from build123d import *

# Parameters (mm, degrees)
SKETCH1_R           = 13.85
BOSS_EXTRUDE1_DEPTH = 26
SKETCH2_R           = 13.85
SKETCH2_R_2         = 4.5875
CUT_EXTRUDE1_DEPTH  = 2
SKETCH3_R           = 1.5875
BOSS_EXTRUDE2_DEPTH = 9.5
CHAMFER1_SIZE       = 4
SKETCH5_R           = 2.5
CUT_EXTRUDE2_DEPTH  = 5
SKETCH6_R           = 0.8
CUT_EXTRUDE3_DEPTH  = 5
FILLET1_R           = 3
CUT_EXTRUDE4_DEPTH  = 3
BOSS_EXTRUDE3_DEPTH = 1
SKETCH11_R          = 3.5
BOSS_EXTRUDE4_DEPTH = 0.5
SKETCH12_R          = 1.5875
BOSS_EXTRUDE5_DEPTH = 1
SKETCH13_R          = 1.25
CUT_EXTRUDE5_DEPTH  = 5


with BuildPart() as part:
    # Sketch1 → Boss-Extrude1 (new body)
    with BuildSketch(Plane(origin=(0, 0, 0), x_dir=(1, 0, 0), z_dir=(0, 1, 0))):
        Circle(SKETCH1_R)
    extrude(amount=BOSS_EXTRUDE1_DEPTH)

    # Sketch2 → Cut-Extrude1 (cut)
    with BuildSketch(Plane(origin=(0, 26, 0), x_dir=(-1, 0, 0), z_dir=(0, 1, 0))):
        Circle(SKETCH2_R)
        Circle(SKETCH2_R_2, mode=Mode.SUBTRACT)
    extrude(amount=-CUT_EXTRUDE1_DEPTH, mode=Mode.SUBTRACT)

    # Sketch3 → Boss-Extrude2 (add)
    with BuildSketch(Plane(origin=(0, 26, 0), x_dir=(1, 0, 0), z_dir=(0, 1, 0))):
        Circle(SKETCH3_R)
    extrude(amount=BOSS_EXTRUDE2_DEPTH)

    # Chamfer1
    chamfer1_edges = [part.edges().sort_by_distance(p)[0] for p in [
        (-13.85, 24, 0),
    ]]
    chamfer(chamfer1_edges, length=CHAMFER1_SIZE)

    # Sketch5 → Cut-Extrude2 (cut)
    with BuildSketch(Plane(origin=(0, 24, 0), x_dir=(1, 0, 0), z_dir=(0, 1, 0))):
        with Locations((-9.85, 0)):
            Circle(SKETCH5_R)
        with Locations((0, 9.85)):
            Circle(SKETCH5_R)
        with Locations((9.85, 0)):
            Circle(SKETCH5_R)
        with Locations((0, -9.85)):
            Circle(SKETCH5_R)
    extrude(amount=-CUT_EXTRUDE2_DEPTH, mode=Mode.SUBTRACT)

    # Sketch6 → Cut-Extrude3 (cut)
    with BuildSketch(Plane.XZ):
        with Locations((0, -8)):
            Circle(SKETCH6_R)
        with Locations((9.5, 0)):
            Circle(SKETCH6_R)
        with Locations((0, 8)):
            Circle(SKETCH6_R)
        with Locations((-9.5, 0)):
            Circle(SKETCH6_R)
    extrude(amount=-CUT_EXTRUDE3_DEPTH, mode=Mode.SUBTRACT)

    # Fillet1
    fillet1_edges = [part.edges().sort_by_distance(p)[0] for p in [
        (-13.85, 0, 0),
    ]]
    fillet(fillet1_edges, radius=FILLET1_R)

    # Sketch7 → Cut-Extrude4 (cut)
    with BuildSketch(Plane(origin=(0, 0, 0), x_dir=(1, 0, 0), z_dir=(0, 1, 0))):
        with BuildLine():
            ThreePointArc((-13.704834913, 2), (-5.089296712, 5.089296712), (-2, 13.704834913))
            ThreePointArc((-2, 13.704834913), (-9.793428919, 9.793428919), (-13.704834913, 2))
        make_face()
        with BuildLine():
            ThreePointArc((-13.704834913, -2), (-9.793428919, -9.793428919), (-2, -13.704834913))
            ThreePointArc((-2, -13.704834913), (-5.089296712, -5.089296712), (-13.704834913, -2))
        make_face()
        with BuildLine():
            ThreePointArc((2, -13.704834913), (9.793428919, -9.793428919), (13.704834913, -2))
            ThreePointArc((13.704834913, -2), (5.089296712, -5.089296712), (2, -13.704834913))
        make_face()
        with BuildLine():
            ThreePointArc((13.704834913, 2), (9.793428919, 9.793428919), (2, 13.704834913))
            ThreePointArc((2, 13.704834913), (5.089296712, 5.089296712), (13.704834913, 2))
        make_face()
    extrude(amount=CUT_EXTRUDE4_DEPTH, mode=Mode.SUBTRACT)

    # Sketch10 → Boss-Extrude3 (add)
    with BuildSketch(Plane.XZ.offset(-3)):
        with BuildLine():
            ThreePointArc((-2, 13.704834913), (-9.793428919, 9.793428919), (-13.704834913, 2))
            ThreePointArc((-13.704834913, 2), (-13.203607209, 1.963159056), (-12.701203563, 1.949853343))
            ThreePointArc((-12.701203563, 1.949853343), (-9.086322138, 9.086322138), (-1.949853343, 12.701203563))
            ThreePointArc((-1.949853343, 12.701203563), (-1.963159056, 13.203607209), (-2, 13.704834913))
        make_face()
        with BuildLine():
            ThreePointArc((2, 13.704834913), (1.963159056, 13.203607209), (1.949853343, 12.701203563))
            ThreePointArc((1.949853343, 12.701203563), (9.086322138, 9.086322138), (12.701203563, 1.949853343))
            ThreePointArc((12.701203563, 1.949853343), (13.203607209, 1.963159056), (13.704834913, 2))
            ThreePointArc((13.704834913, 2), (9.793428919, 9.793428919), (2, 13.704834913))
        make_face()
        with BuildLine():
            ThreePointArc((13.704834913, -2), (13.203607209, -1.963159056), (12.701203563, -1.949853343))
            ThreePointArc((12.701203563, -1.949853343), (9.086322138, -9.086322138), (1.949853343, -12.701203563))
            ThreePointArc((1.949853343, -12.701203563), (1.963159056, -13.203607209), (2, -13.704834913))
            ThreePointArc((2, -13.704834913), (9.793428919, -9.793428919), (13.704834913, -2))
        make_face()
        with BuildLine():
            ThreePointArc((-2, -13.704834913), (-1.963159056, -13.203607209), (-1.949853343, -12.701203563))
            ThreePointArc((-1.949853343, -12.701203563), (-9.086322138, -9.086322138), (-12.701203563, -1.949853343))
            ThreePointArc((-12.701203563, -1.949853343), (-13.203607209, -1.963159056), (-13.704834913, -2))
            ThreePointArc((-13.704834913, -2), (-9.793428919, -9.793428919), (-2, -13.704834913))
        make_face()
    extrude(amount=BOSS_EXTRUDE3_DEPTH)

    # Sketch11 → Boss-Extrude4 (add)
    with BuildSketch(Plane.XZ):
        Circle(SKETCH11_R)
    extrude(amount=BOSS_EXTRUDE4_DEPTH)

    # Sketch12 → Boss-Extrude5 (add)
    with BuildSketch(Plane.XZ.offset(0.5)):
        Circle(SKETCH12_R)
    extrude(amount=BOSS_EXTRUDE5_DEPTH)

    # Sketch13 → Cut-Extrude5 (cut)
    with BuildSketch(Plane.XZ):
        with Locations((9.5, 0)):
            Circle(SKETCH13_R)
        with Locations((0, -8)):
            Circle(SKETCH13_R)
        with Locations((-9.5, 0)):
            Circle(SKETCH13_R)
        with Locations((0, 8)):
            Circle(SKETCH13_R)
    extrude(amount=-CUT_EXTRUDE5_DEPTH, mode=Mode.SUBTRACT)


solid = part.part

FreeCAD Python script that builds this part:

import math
import FreeCAD as App
import Part
import Sketcher
from FreeCAD import Vector
Q = App.Units.Quantity


def edges_at(feature, points):
    """Names of the edges that pass closest to the given points."""
    edges = feature.Shape.Edges
    near = lambda p: min(range(len(edges)), key=lambda i: edges[i].distToShape(Part.Vertex(*p))[0])
    return sorted({f"Edge{near(p) + 1}" for p in points})

doc = App.newDocument("Part")
body = doc.addObject("PartDesign::Body", "Body")

# Sketch on XZ plane
sketch1 = body.newObject("Sketcher::SketchObject", "Sketch")
sketch1.AttachmentSupport = (doc.getObject("XZ_Plane"), [""])
sketch1.MapMode = "FlatFace"
sketch1.addGeometry(Part.Circle(Vector(0, 0, 0), Vector(0, 0, 1), 14), False)
sketch1.addConstraint([
    Sketcher.Constraint("Coincident", 0, 3, -1, 1),
    Sketcher.Constraint("Diameter", 0, Q("27.7 mm")),
])
pad1 = body.newObject("PartDesign::Pad", "Pad")
pad1.Profile = sketch1
pad1.Length = 26
pad1.Reversed = True

# Sketch on XZ plane
sketch2 = body.newObject("Sketcher::SketchObject", "Sketch001")
sketch2.AttachmentSupport = (doc.getObject("XZ_Plane"), [""])
sketch2.MapMode = "FlatFace"
sketch2.AttachmentOffset = App.Placement(Vector(0, 0, -26), App.Rotation())
sketch2.addGeometry([
    Part.Circle(Vector(0, 0, 0), Vector(0, 0, 1), 13.8),
    Part.Circle(Vector(0, 0, 0), Vector(0, 0, 1), 4.6),
], False)
sketch2.addConstraint([
    Sketcher.Constraint("Coincident", 0, 3, -1, 1),
    Sketcher.Constraint("Coincident", 1, 3, -1, 1),
    Sketcher.Constraint("Diameter", 0, Q("27.7 mm")),
    Sketcher.Constraint("Diameter", 1, Q("9.175 mm")),
])
pocket1 = body.newObject("PartDesign::Pocket", "Pocket")
pocket1.Profile = sketch2
pocket1.Length = 2
pocket1.Reversed = True

# Sketch on XZ plane
sketch3 = body.newObject("Sketcher::SketchObject", "Sketch002")
sketch3.AttachmentSupport = (doc.getObject("XZ_Plane"), [""])
sketch3.MapMode = "FlatFace"
sketch3.AttachmentOffset = App.Placement(Vector(0, 0, -26), App.Rotation())
sketch3.addGeometry(Part.Circle(Vector(0, 0, 0), Vector(0, 0, 1), 1.6), False)
sketch3.addConstraint([
    Sketcher.Constraint("Coincident", 0, 3, -1, 1),
    Sketcher.Constraint("Diameter", 0, Q("3.175 mm")),
])
pad2 = body.newObject("PartDesign::Pad", "Pad001")
pad2.Profile = sketch3
pad2.Length = 9.5
pad2.Reversed = True
doc.recompute()

chamfer = body.newObject("PartDesign::Chamfer", "Chamfer")
chamfer.Base = (pad2, edges_at(pad2, [(-13.85, 24, 0)]))
chamfer.Size = 4

# Sketch on XZ plane
sketch4 = body.newObject("Sketcher::SketchObject", "Sketch003")
sketch4.AttachmentSupport = (doc.getObject("XZ_Plane"), [""])
sketch4.MapMode = "FlatFace"
sketch4.AttachmentOffset = App.Placement(Vector(0, 0, -24), App.Rotation())
sketch4.addGeometry([
    Part.Circle(Vector(-9.8, 0, 0), Vector(0, 0, 1), 2.5),
    Part.Circle(Vector(0, -9.8, 0), Vector(0, 0, 1), 2.5),
    Part.Circle(Vector(9.8, 0, 0), Vector(0, 0, 1), 2.5),
    Part.Circle(Vector(0, 9.8, 0), Vector(0, 0, 1), 2.5),
], False)
sketch4.addConstraint([
    Sketcher.Constraint("Equal", 0, 1),
    Sketcher.Constraint("Equal", 1, 2),
    Sketcher.Constraint("Equal", 2, 3),
    Sketcher.Constraint("Symmetric", 0, 3, 2, 3, -1, 1),
    Sketcher.Constraint("Symmetric", 1, 3, 3, 3, -1, 1),
    Sketcher.Constraint("PointOnObject", 0, 3, -1),
    Sketcher.Constraint("PointOnObject", 1, 3, -2),
    Sketcher.Constraint("Diameter", 0, Q("5 mm")),
    Sketcher.Constraint("DistanceX", 0, 3, 2, 3, Q("19.7 mm")),
    Sketcher.Constraint("DistanceY", 1, 3, 3, 3, Q("19.7 mm")),
])
pocket2 = body.newObject("PartDesign::Pocket", "Pocket001")
pocket2.Profile = sketch4
pocket2.Length = 5
pocket2.Reversed = True

# Sketch on XZ plane
sketch5 = body.newObject("Sketcher::SketchObject", "Sketch004")
sketch5.AttachmentSupport = (doc.getObject("XZ_Plane"), [""])
sketch5.MapMode = "FlatFace"
sketch5.addGeometry([
    Part.Circle(Vector(0, -8, 0), Vector(0, 0, 1), 0.8),
    Part.Circle(Vector(9.5, 0, 0), Vector(0, 0, 1), 0.8),
    Part.Circle(Vector(0, 8, 0), Vector(0, 0, 1), 0.8),
    Part.Circle(Vector(-9.5, 0, 0), Vector(0, 0, 1), 0.8),
], False)
sketch5.addConstraint([
    Sketcher.Constraint("Equal", 0, 1),
    Sketcher.Constraint("Equal", 1, 2),
    Sketcher.Constraint("Equal", 2, 3),
    Sketcher.Constraint("Symmetric", 0, 3, 2, 3, -1, 1),
    Sketcher.Constraint("Symmetric", 1, 3, 3, 3, -1, 1),
    Sketcher.Constraint("PointOnObject", 0, 3, -2),
    Sketcher.Constraint("PointOnObject", 1, 3, -1),
    Sketcher.Constraint("Diameter", 0, Q("1.6 mm")),
    Sketcher.Constraint("DistanceY", 0, 3, -1, 1, Q("8 mm")),
    Sketcher.Constraint("DistanceX", 3, 3, 1, 3, Q("19 mm")),
])
pocket3 = body.newObject("PartDesign::Pocket", "Pocket002")
pocket3.Profile = sketch5
pocket3.Length = 5
doc.recompute()

fillet = body.newObject("PartDesign::Fillet", "Fillet")
fillet.Base = (pocket3, edges_at(pocket3, [(-13.85, 0, 0)]))
fillet.Radius = 3

# Sketch on XZ plane
sketch6 = body.newObject("Sketcher::SketchObject", "Sketch005")
sketch6.AttachmentSupport = (doc.getObject("XZ_Plane"), [""])
sketch6.MapMode = "FlatFace"
sketch6.addGeometry([
    Part.ArcOfCircle(Part.Circle(Vector(-13, -13, 0), Vector(0, 0, 1), 11), math.radians(-6), math.radians(96)),  # 0
    Part.ArcOfCircle(Part.Circle(Vector(0, 0, 0), Vector(0, 0, 1), 14), math.radians(-172), math.radians(-98)),  # 1
    Part.ArcOfCircle(Part.Circle(Vector(0, 0, 0), Vector(0, 0, 1), 14), math.radians(98), math.radians(172)),  # 2
    Part.ArcOfCircle(Part.Circle(Vector(-13, 13, 0), Vector(0, 0, 1), 11), math.radians(-96), math.radians(6)),  # 3
    Part.ArcOfCircle(Part.Circle(Vector(0, 0, 0), Vector(0, 0, 1), 14), math.radians(8), math.radians(82)),  # 4
    Part.ArcOfCircle(Part.Circle(Vector(13, 13, 0), Vector(0, 0, 1), 11), math.radians(174), math.radians(276)),  # 5
    Part.ArcOfCircle(Part.Circle(Vector(0, 0, 0), Vector(0, 0, 1), 14), math.radians(-82), math.radians(-8)),  # 6
    Part.ArcOfCircle(Part.Circle(Vector(13, -13, 0), Vector(0, 0, 1), 11), math.radians(84), math.radians(186)),  # 7
], False)
sketch6.addConstraint([
    Sketcher.Constraint("Coincident", 0, 1, 1, 2),
    Sketcher.Constraint("Coincident", 1, 1, 0, 2),
    Sketcher.Constraint("Coincident", 2, 1, 3, 2),
    Sketcher.Constraint("Coincident", 3, 1, 2, 2),
    Sketcher.Constraint("Coincident", 4, 1, 5, 2),
    Sketcher.Constraint("Coincident", 5, 1, 4, 2),
    Sketcher.Constraint("Coincident", 6, 1, 7, 2),
    Sketcher.Constraint("Coincident", 7, 1, 6, 2),
    Sketcher.Constraint("Coincident", 1, 3, -1, 1),
    Sketcher.Constraint("Coincident", 2, 3, -1, 1),
    Sketcher.Constraint("Coincident", 4, 3, -1, 1),
    Sketcher.Constraint("Coincident", 6, 3, -1, 1),
    Sketcher.Constraint("Equal", 1, 2),
    Sketcher.Constraint("Equal", 0, 3),
    Sketcher.Constraint("Equal", 2, 4),
    Sketcher.Constraint("Equal", 3, 5),
    Sketcher.Constraint("Equal", 4, 6),
    Sketcher.Constraint("Equal", 5, 7),
    Sketcher.Constraint("Symmetric", 0, 3, 5, 3, -1, 1),
    Sketcher.Constraint("Symmetric", 3, 3, 7, 3, -1, 1),
    Sketcher.Constraint("Symmetric", 3, 3, 5, 3, -2),
    Sketcher.Constraint("Radius", 1, Q("13.85 mm")),
    Sketcher.Constraint("DistanceX", 0, 1, -1, 1, Q("2 mm")),
    Sketcher.Constraint("DistanceY", 1, 1, -1, 1, Q("2 mm")),
    Sketcher.Constraint("Radius", 0, Q("10.718898 mm")),
])
pocket4 = body.newObject("PartDesign::Pocket", "Pocket003")
pocket4.Profile = sketch6
pocket4.Length = 3

# Sketch on XZ plane
sketch7 = body.newObject("Sketcher::SketchObject", "Sketch006")
sketch7.AttachmentSupport = (doc.getObject("XZ_Plane"), [""])
sketch7.MapMode = "FlatFace"
sketch7.AttachmentOffset = App.Placement(Vector(0, 0, -3), App.Rotation())
sketch7.addGeometry([
    Part.ArcOfCircle(Part.Circle(Vector(0, 0, 0), Vector(0, 0, 1), 13.9), math.radians(98), math.radians(172)),  # 0
    Part.ArcOfCircle(Part.Circle(Vector(-12.7, 12.7, 0), Vector(0, 0, 1), 10.7), math.radians(-95.55), math.radians(-90.17)),  # 1
    Part.ArcOfCircle(Part.Circle(Vector(0, 0, 0), Vector(0, 0, 1), 12.9), math.radians(99), math.radians(171)),  # 2
    Part.ArcOfCircle(Part.Circle(Vector(-12.7, 12.7, 0), Vector(0, 0, 1), 10.7), math.radians(0.17), math.radians(5.55)),  # 3
    Part.ArcOfCircle(Part.Circle(Vector(12.7, 12.7, 0), Vector(0, 0, 1), 10.7), math.radians(174.45), math.radians(179.83)),  # 4
    Part.ArcOfCircle(Part.Circle(Vector(0, 0, 0), Vector(0, 0, 1), 12.9), math.radians(9), math.radians(81)),  # 5
    Part.ArcOfCircle(Part.Circle(Vector(12.7, 12.7, 0), Vector(0, 0, 1), 10.7), math.radians(-89.83), math.radians(-84.45)),  # 6
    Part.ArcOfCircle(Part.Circle(Vector(0, 0, 0), Vector(0, 0, 1), 13.9), math.radians(8), math.radians(82)),  # 7
    Part.ArcOfCircle(Part.Circle(Vector(12.7, -12.7, 0), Vector(0, 0, 1), 10.7), math.radians(84.45), math.radians(89.83)),  # 8
    Part.ArcOfCircle(Part.Circle(Vector(0, 0, 0), Vector(0, 0, 1), 12.9), math.radians(-81), math.radians(-9)),  # 9
    Part.ArcOfCircle(Part.Circle(Vector(12.7, -12.7, 0), Vector(0, 0, 1), 10.7), math.radians(-179.83), math.radians(-174.45)),  # 10
    Part.ArcOfCircle(Part.Circle(Vector(0, 0, 0), Vector(0, 0, 1), 13.9), math.radians(-82), math.radians(-8)),  # 11
    Part.ArcOfCircle(Part.Circle(Vector(-12.7, -12.7, 0), Vector(0, 0, 1), 10.7), math.radians(-5.55), math.radians(-0.17)),  # 12
    Part.ArcOfCircle(Part.Circle(Vector(0, 0, 0), Vector(0, 0, 1), 12.9), math.radians(-171), math.radians(-99)),  # 13
    Part.ArcOfCircle(Part.Circle(Vector(-12.7, -12.7, 0), Vector(0, 0, 1), 10.7), math.radians(90.17), math.radians(95.55)),  # 14
    Part.ArcOfCircle(Part.Circle(Vector(0, 0, 0), Vector(0, 0, 1), 13.9), math.radians(-172), math.radians(-98)),  # 15
], False)
sketch7.addConstraint([
    Sketcher.Constraint("Coincident", 0, 2, 1, 1),
    Sketcher.Constraint("Coincident", 1, 2, 2, 2),
    Sketcher.Constraint("Coincident", 2, 1, 3, 1),
    Sketcher.Constraint("Coincident", 3, 2, 0, 1),
    Sketcher.Constraint("Coincident", 4, 2, 5, 2),
    Sketcher.Constraint("Coincident", 5, 1, 6, 1),
    Sketcher.Constraint("Coincident", 6, 2, 7, 1),
    Sketcher.Constraint("Coincident", 7, 2, 4, 1),
    Sketcher.Constraint("Coincident", 8, 2, 9, 2),
    Sketcher.Constraint("Coincident", 9, 1, 10, 1),
    Sketcher.Constraint("Coincident", 10, 2, 11, 1),
    Sketcher.Constraint("Coincident", 11, 2, 8, 1),
    Sketcher.Constraint("Coincident", 12, 2, 13, 2),
    Sketcher.Constraint("Coincident", 13, 1, 14, 1),
    Sketcher.Constraint("Coincident", 14, 2, 15, 1),
    Sketcher.Constraint("Coincident", 15, 2, 12, 1),
    Sketcher.Constraint("Coincident", 0, 3, -1, 1),
    Sketcher.Constraint("Coincident", 2, 3, -1, 1),
    Sketcher.Constraint("Coincident", 5, 3, -1, 1),
    Sketcher.Constraint("Coincident", 7, 3, -1, 1),
    Sketcher.Constraint("Coincident", 9, 3, -1, 1),
    Sketcher.Constraint("Coincident", 11, 3, -1, 1),
    Sketcher.Constraint("Coincident", 13, 3, -1, 1),
    Sketcher.Constraint("Coincident", 15, 3, -1, 1),
    Sketcher.Constraint("Coincident", 3, 3, 1, 3),
    Sketcher.Constraint("Coincident", 6, 3, 4, 3),
    Sketcher.Constraint("Coincident", 10, 3, 8, 3),
    Sketcher.Constraint("Coincident", 14, 3, 12, 3),
    Sketcher.Constraint("Equal", 1, 3),
    Sketcher.Constraint("Equal", 3, 4),
    Sketcher.Constraint("Equal", 2, 5),
    Sketcher.Constraint("Equal", 4, 6),
    Sketcher.Constraint("Equal", 0, 7),
    Sketcher.Constraint("Equal", 6, 8),
    Sketcher.Constraint("Equal", 5, 9),
    Sketcher.Constraint("Equal", 8, 10),
    Sketcher.Constraint("Equal", 7, 11),
    Sketcher.Constraint("Equal", 10, 12),
    Sketcher.Constraint("Equal", 9, 13),
    Sketcher.Constraint("Equal", 12, 14),
    Sketcher.Constraint("Equal", 11, 15),
    Sketcher.Constraint("Symmetric", 1, 3, 8, 3, -1, 1),
    Sketcher.Constraint("Symmetric", 4, 3, 12, 3, -1, 1),
    Sketcher.Constraint("Symmetric", 1, 3, 4, 3, -2),
    Sketcher.Constraint("Radius", 0, Q("13.85 mm")),
    Sketcher.Constraint("Radius", 2, Q("12.85 mm")),
    Sketcher.Constraint("DistanceY", -1, 1, 0, 2, Q("2 mm")),
    Sketcher.Constraint("DistanceX", 3, 2, -1, 1, Q("2 mm")),
    Sketcher.Constraint("Radius", 1, Q("10.718899 mm")),
])
pad3 = body.newObject("PartDesign::Pad", "Pad002")
pad3.Profile = sketch7
pad3.Length = 1

# Sketch on XZ plane
sketch8 = body.newObject("Sketcher::SketchObject", "Sketch007")
sketch8.AttachmentSupport = (doc.getObject("XZ_Plane"), [""])
sketch8.MapMode = "FlatFace"
sketch8.addGeometry(Part.Circle(Vector(0, 0, 0), Vector(0, 0, 1), 3.5), False)
sketch8.addConstraint([
    Sketcher.Constraint("Coincident", 0, 3, -1, 1),
    Sketcher.Constraint("Diameter", 0, Q("7 mm")),
])
pad4 = body.newObject("PartDesign::Pad", "Pad003")
pad4.Profile = sketch8
pad4.Length = 0.5

# Sketch on XZ plane
sketch9 = body.newObject("Sketcher::SketchObject", "Sketch008")
sketch9.AttachmentSupport = (doc.getObject("XZ_Plane"), [""])
sketch9.MapMode = "FlatFace"
sketch9.AttachmentOffset = App.Placement(Vector(0, 0, 0.5), App.Rotation())
sketch9.addGeometry(Part.Circle(Vector(0, 0, 0), Vector(0, 0, 1), 1.6), False)
sketch9.addConstraint([
    Sketcher.Constraint("Coincident", 0, 3, -1, 1),
    Sketcher.Constraint("Diameter", 0, Q("3.175 mm")),
])
pad5 = body.newObject("PartDesign::Pad", "Pad004")
pad5.Profile = sketch9
pad5.Length = 1

# Sketch on XZ plane
sketch10 = body.newObject("Sketcher::SketchObject", "Sketch009")
sketch10.AttachmentSupport = (doc.getObject("XZ_Plane"), [""])
sketch10.MapMode = "FlatFace"
sketch10.addGeometry([
    Part.Circle(Vector(9.5, 0, 0), Vector(0, 0, 1), 1.2),
    Part.Circle(Vector(0, -8, 0), Vector(0, 0, 1), 1.2),
    Part.Circle(Vector(-9.5, 0, 0), Vector(0, 0, 1), 1.2),
    Part.Circle(Vector(0, 8, 0), Vector(0, 0, 1), 1.2),
], False)
sketch10.addConstraint([
    Sketcher.Constraint("Equal", 0, 1),
    Sketcher.Constraint("Equal", 1, 2),
    Sketcher.Constraint("Equal", 2, 3),
    Sketcher.Constraint("Symmetric", 0, 3, 2, 3, -1, 1),
    Sketcher.Constraint("Symmetric", 1, 3, 3, 3, -1, 1),
    Sketcher.Constraint("PointOnObject", 0, 3, -1),
    Sketcher.Constraint("PointOnObject", 1, 3, -2),
    Sketcher.Constraint("Diameter", 0, Q("2.5 mm")),
    Sketcher.Constraint("DistanceY", 1, 3, -1, 1, Q("8 mm")),
    Sketcher.Constraint("DistanceX", 2, 3, 0, 3, Q("19 mm")),
])
pocket5 = body.newObject("PartDesign::Pocket", "Pocket004")
pocket5.Profile = sketch10
pocket5.Length = 5

doc.recompute()
